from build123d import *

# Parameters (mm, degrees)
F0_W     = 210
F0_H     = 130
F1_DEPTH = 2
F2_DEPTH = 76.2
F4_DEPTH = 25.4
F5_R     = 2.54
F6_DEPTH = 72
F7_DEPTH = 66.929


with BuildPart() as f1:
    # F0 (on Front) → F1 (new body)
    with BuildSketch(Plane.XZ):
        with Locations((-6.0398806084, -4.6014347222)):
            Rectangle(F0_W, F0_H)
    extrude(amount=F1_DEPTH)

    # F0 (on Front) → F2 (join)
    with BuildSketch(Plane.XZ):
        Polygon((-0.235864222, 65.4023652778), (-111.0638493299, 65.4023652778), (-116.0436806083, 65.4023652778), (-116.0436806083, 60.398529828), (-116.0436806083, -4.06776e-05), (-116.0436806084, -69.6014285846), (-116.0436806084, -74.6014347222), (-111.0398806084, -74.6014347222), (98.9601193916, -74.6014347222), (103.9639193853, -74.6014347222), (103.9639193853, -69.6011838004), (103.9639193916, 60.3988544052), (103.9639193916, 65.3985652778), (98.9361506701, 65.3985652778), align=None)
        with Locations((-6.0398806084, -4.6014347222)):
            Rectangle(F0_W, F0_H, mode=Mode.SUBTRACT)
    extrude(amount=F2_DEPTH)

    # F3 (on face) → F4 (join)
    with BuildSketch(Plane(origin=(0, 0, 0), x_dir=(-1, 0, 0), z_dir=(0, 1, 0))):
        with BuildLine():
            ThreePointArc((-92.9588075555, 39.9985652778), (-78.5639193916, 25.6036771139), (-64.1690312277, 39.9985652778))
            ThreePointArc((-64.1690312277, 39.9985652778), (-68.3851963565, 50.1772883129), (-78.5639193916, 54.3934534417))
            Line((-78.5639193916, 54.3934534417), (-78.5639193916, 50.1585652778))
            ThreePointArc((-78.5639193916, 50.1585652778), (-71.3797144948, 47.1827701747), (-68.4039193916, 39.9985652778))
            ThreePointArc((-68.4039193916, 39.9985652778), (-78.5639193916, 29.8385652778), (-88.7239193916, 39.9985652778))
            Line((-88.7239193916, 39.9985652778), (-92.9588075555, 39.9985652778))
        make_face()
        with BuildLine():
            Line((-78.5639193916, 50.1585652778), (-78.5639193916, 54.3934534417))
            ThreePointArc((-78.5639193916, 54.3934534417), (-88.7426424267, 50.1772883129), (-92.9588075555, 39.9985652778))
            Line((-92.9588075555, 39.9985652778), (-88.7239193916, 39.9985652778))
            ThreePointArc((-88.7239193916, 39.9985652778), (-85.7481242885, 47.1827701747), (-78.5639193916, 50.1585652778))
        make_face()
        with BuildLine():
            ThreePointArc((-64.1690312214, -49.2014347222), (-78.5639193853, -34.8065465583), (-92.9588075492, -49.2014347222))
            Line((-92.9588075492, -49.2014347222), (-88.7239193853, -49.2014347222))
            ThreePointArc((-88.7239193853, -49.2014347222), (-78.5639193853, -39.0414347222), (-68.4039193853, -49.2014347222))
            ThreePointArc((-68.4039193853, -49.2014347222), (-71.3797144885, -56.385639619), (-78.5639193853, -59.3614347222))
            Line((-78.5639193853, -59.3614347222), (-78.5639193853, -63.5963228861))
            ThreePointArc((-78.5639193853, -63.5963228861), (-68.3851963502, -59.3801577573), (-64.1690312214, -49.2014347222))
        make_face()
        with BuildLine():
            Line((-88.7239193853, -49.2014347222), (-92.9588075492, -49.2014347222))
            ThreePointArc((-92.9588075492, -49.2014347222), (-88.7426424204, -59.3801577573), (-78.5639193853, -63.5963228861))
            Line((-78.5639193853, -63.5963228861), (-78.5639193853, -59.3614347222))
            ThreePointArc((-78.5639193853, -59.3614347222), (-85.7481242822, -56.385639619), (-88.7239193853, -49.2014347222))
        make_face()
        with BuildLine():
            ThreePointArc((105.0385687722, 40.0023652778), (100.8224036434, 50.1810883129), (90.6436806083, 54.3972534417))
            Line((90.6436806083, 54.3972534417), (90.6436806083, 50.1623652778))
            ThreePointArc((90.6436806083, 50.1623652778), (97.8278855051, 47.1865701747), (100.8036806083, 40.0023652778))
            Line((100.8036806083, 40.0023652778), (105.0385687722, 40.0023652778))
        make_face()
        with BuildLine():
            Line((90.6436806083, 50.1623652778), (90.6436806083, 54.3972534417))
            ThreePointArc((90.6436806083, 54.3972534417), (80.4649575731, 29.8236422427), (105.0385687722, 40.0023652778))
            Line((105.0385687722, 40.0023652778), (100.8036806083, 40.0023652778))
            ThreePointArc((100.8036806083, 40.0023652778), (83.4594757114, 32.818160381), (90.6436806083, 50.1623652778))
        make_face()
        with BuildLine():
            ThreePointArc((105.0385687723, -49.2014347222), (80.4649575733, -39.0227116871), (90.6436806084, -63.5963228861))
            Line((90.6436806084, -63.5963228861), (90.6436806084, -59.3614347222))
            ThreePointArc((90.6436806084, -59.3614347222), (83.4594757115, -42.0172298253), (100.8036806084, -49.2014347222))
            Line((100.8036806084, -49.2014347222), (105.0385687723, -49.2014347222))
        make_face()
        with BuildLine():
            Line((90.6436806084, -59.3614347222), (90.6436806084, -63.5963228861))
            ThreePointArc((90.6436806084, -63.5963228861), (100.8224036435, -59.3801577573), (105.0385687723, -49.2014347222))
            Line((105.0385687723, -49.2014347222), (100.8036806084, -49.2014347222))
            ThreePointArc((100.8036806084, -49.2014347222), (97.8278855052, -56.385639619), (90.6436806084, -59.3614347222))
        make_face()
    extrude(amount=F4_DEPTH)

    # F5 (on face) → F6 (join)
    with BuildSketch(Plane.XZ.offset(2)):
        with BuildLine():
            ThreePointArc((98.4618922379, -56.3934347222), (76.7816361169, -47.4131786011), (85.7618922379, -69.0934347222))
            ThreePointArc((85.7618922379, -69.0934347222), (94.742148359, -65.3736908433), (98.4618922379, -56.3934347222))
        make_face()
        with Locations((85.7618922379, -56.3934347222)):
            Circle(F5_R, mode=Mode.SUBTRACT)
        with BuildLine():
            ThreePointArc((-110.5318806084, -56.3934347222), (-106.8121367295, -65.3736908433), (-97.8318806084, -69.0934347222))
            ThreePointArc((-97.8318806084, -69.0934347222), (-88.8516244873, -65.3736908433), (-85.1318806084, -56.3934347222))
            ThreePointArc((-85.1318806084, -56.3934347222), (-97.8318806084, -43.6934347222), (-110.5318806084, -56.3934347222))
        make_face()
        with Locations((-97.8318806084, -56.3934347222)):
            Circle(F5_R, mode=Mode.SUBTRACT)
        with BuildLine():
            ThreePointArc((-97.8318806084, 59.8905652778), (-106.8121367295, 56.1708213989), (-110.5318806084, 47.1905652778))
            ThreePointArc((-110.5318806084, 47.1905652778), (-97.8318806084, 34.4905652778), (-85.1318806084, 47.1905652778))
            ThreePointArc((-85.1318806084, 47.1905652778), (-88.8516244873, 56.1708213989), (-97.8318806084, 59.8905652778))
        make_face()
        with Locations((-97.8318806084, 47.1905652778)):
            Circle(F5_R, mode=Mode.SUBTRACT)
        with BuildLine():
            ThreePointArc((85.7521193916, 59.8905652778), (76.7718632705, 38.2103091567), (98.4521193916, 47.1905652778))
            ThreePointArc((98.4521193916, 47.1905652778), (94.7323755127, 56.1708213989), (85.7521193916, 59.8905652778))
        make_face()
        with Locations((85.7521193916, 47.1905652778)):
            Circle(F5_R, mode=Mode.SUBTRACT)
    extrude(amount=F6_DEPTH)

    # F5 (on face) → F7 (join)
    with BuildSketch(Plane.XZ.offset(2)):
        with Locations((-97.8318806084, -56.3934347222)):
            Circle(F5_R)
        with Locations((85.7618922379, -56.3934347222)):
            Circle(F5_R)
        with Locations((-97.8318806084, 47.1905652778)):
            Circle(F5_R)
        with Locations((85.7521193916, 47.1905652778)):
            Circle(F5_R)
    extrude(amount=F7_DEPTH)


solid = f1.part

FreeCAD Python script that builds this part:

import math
import FreeCAD as App
import Part
import Sketcher

V = App.Vector
Q = App.Units.Quantity

doc = App.newDocument("Part")
body = doc.addObject("PartDesign::Body", "Body")

sketch1 = body.newObject("Sketcher::SketchObject", "Sketch")
sketch1.AttachmentSupport = (doc.getObject("XZ_Plane"), [""])
sketch1.MapMode = "FlatFace"
sketch1.addGeometry([
    Part.LineSegment(V(-111, 60, 0), V(-111, -70, 0)),
    Part.LineSegment(V(-111, -70, 0), V(99, -70, 0)),
    Part.LineSegment(V(99, -70, 0), V(99, 60, 0)),
    Part.LineSegment(V(99, 60, 0), V(-111, 60, 0)),
], False)
sketch1.addConstraint([
    Sketcher.Constraint("Coincident", 0, 2, 1, 1),
    Sketcher.Constraint("Coincident", 1, 2, 2, 1),
    Sketcher.Constraint("Coincident", 2, 2, 3, 1),
    Sketcher.Constraint("Coincident", 3, 2, 0, 1),
    Sketcher.Constraint("Vertical", 0),
    Sketcher.Constraint("Horizontal", 1),
    Sketcher.Constraint("Vertical", 2),
    Sketcher.Constraint("Horizontal", 3),
    Sketcher.Constraint("DistanceX", 1, 1, 1, 2, Q("210 mm")),
    Sketcher.Constraint("DistanceY", 0, 2, 0, 1, Q("130 mm")),
    Sketcher.Constraint("DistanceX", 0, 2, -1, 1, Q("111.039881 mm")),
    Sketcher.Constraint("DistanceY", 0, 2, -1, 1, Q("69.601435 mm")),
])
pad1 = body.newObject("PartDesign::Pad", "Pad")
pad1.Profile = sketch1
pad1.Length = 2

sketch2 = body.newObject("Sketcher::SketchObject", "Sketch001")
sketch2.AttachmentSupport = (doc.getObject("XZ_Plane"), [""])
sketch2.MapMode = "FlatFace"
sketch2.addGeometry([
    Part.LineSegment(V(-0.2, 65.4, 0), V(-116, 65.4, 0)),
    Part.LineSegment(V(-116, 65.4, 0), V(-116, 0, 0)),
    Part.LineSegment(V(-116, 0, 0), V(-116, -69.6, 0)),
    Part.LineSegment(V(-116, -69.6, 0), V(-116, -74.6, 0)),
    Part.LineSegment(V(-116, -74.6, 0), V(104, -74.6, 0)),
    Part.LineSegment(V(104, -74.6, 0), V(104, -69.6, 0)),
    Part.LineSegment(V(104, -69.6, 0), V(104, 60.4, 0)),
    Part.LineSegment(V(104, 60.4, 0), V(104, 65.4, 0)),
    Part.LineSegment(V(104, 65.4, 0), V(98.9, 65.4, 0)),
    Part.LineSegment(V(98.9, 65.4, 0), V(-0.2, 65.4, 0)),
    Part.LineSegment(V(99, -69.6, 0), V(-111, -69.6, 0)),
    Part.LineSegment(V(-111, -69.6, 0), V(-111, 60.4, 0)),
    Part.LineSegment(V(-111, 60.4, 0), V(99, 60.4, 0)),
    Part.LineSegment(V(99, 60.4, 0), V(99, -69.6, 0)),
], False)
sketch2.addConstraint([
    Sketcher.Constraint("Coincident", 0, 2, 1, 1),
    Sketcher.Constraint("Coincident", 1, 2, 2, 1),
    Sketcher.Constraint("Coincident", 2, 2, 3, 1),
    Sketcher.Constraint("Coincident", 3, 2, 4, 1),
    Sketcher.Constraint("Coincident", 4, 2, 5, 1),
    Sketcher.Constraint("Coincident", 5, 2, 6, 1),
    Sketcher.Constraint("Coincident", 6, 2, 7, 1),
    Sketcher.Constraint("Coincident", 7, 2, 8, 1),
    Sketcher.Constraint("Coincident", 8, 2, 9, 1),
    Sketcher.Constraint("Coincident", 9, 2, 0, 1),
    Sketcher.Constraint("Coincident", 10, 2, 11, 1),
    Sketcher.Constraint("Coincident", 11, 2, 12, 1),
    Sketcher.Constraint("Coincident", 12, 2, 13, 1),
    Sketcher.Constraint("Coincident", 13, 2, 10, 1),
    Sketcher.Constraint("Horizontal", 0),
    Sketcher.Constraint("Vertical", 1),
    Sketcher.Constraint("Vertical", 2),
    Sketcher.Constraint("Vertical", 3),
    Sketcher.Constraint("Horizontal", 4),
    Sketcher.Constraint("Vertical", 5),
    Sketcher.Constraint("Vertical", 6),
    Sketcher.Constraint("Vertical", 7),
    Sketcher.Constraint("Horizontal", 8),
    Sketcher.Constraint("Horizontal", 10),
    Sketcher.Constraint("Vertical", 11),
    Sketcher.Constraint("Horizontal", 12),
    Sketcher.Constraint("Vertical", 13),
    Sketcher.Constraint("DistanceX", 2, 2, 10, 2, Q("0.197 in")),
    Sketcher.Constraint("DistanceY", 11, 2, 0, 2, Q("0.197 in")),
    Sketcher.Constraint("DistanceX", 12, 2, 6, 2, Q("0.197 in")),
    Sketcher.Constraint("DistanceX", 4, 1, 4, 2, Q("220.0076 mm")),
    Sketcher.Constraint("DistanceY", 11, 1, 11, 2, Q("130 mm")),
    Sketcher.Constraint("DistanceX", 8, 2, 8, 1, Q("5.027769 mm")),
    Sketcher.Constraint("DistanceY", 5, 1, 5, 2, Q("5.000251 mm")),
    Sketcher.Constraint("DistanceY", 6, 1, 6, 2, Q("130.000038 mm")),
    Sketcher.Constraint("DistanceY", 7, 1, 7, 2, Q("4.999711 mm")),
    Sketcher.Constraint("DistanceY", 3, 2, 0, 2, Q("140.0038 mm")),
    Sketcher.Constraint("DistanceX", 0, 2, 0, 1, Q("115.807816 mm")),
    Sketcher.Constraint("DistanceY", 1, 2, 1, 1, Q("65.402406 mm")),
    Sketcher.Constraint("DistanceY", 2, 2, 2, 1, Q("69.601388 mm")),
    Sketcher.Constraint("DistanceX", 0, 2, -1, 1, Q("116.043681 mm")),
    Sketcher.Constraint("DistanceY", 2, 2, -1, 1, Q("69.601429 mm")),
])
pad2 = body.newObject("PartDesign::Pad", "Pad001")
pad2.Profile = sketch2
pad2.Length = Q("3 in")

sketch3 = body.newObject("Sketcher::SketchObject", "Sketch002")
sketch3.AttachmentSupport = (doc.getObject("XZ_Plane"), [""])
sketch3.MapMode = "FlatFace"
sketch3.addGeometry([
    Part.ArcOfCircle(Part.Circle(V(79, 40, 0), V(0, 0, 1), 14), math.radians(180), math.radians(360)),
    Part.ArcOfCircle(Part.Circle(V(79, 40, 0), V(0, 0, 1), 14), math.radians(90), math.radians(180)),
    Part.ArcOfCircle(Part.Circle(V(79, 40, 0), V(0, 0, 1), 14), math.radians(0), math.radians(90)),
    Part.ArcOfCircle(Part.Circle(V(79, 40, 0), V(0, 0, 1), 10), math.radians(90), math.radians(180)),
    Part.ArcOfCircle(Part.Circle(V(79, 40, 0), V(0, 0, 1), 10), math.radians(180), math.radians(360)),
    Part.ArcOfCircle(Part.Circle(V(79, 40, 0), V(0, 0, 1), 10), math.radians(0), math.radians(90)),
    Part.ArcOfCircle(Part.Circle(V(79, -49, 0), V(0, 0, 1), 14), math.radians(0), math.radians(180)),
    Part.ArcOfCircle(Part.Circle(V(79, -49, 0), V(0, 0, 1), 14), math.radians(-90), math.radians(0)),
    Part.ArcOfCircle(Part.Circle(V(79, -49, 0), V(0, 0, 1), 14), math.radians(180), math.radians(270)),
    Part.ArcOfCircle(Part.Circle(V(79, -49, 0), V(0, 0, 1), 10), math.radians(0), math.radians(180)),
    Part.ArcOfCircle(Part.Circle(V(79, -49, 0), V(0, 0, 1), 10), math.radians(180), math.radians(270)),
    Part.ArcOfCircle(Part.Circle(V(79, -49, 0), V(0, 0, 1), 10), math.radians(-90), math.radians(0)),
    Part.ArcOfCircle(Part.Circle(V(-91, 40, 0), V(0, 0, 1), 14), math.radians(90), math.radians(180)),
    Part.ArcOfCircle(Part.Circle(V(-91, 40, 0), V(0, 0, 1), 14), math.radians(180), math.radians(450)),
    Part.ArcOfCircle(Part.Circle(V(-91, 40, 0), V(0, 0, 1), 10), math.radians(90), math.radians(180)),
    Part.ArcOfCircle(Part.Circle(V(-91, 40, 0), V(0, 0, 1), 10), math.radians(180), math.radians(450)),
    Part.ArcOfCircle(Part.Circle(V(-91, -49, 0), V(0, 0, 1), 14), math.radians(-90), math.radians(180)),
    Part.ArcOfCircle(Part.Circle(V(-91, -49, 0), V(0, 0, 1), 14), math.radians(180), math.radians(270)),
    Part.ArcOfCircle(Part.Circle(V(-91, -49, 0), V(0, 0, 1), 10), math.radians(-90), math.radians(180)),
    Part.ArcOfCircle(Part.Circle(V(-91, -49, 0), V(0, 0, 1), 10), math.radians(180), math.radians(270)),
], False)
sketch3.addConstraint([
    Sketcher.Constraint("Tangent", 0, 1, 1, 2),
    Sketcher.Constraint("Tangent", 1, 1, 2, 2),
    Sketcher.Constraint("Tangent", 2, 1, 0, 2),
    Sketcher.Constraint("Tangent", 3, 2, 4, 1),
    Sketcher.Constraint("Tangent", 4, 2, 5, 1),
    Sketcher.Constraint("Tangent", 5, 2, 3, 1),
    Sketcher.Constraint("Tangent", 6, 1, 7, 2),
    Sketcher.Constraint("Tangent", 7, 1, 8, 2),
    Sketcher.Constraint("Tangent", 8, 1, 6, 2),
    Sketcher.Constraint("Tangent", 9, 2, 10, 1),
    Sketcher.Constraint("Tangent", 10, 2, 11, 1),
    Sketcher.Constraint("Tangent", 11, 2, 9, 1),
    Sketcher.Constraint("Tangent", 12, 1, 13, 2),
    Sketcher.Constraint("Coincident", 13, 1, 12, 2),
    Sketcher.Constraint("Tangent", 14, 1, 15, 2),
    Sketcher.Constraint("Coincident", 15, 1, 14, 2),
    Sketcher.Constraint("Tangent", 16, 1, 17, 2),
    Sketcher.Constraint("Coincident", 17, 1, 16, 2),
    Sketcher.Constraint("Tangent", 18, 1, 19, 2),
    Sketcher.Constraint("Coincident", 19, 1, 18, 2),
    Sketcher.Constraint("Coincident", 3, 3, 0, 3),
    Sketcher.Constraint("Coincident", 9, 3, 6, 3),
    Sketcher.Constraint("Coincident", 14, 3, 12, 3),
    Sketcher.Constraint("Coincident", 18, 3, 16, 3),
    Sketcher.Constraint("Equal", 2, 6),
    Sketcher.Constraint("Equal", 5, 9),
    Sketcher.Constraint("Equal", 8, 12),
    Sketcher.Constraint("Equal", 11, 14),
    Sketcher.Constraint("Equal", 13, 16),
    Sketcher.Constraint("Equal", 15, 18),
    Sketcher.Constraint("Horizontal", 11, 3, 16, 3),
    Sketcher.Constraint("Horizontal", 5, 3, 0, 1),
    Sketcher.Constraint("Horizontal", 0, 1, 2, 1),
    Sketcher.Constraint("Horizontal", 2, 1, 3, 2),
    Sketcher.Constraint("Horizontal", 3, 2, 4, 2),
    Sketcher.Constraint("Horizontal", 19, 3, 6, 1),
    Sketcher.Constraint("Horizontal", 6, 1, 8, 1),
    Sketcher.Constraint("Horizontal", 8, 1, 9, 2),
    Sketcher.Constraint("Horizontal", 9, 2, 11, 2),
    Sketcher.Constraint("Horizontal", 15, 3, 13, 1),
    Sketcher.Constraint("Horizontal", 13, 1, 15, 1),
    Sketcher.Constraint("Horizontal", 11, 2, 17, 1),
    Sketcher.Constraint("Horizontal", 17, 1, 19, 1),
    Sketcher.Constraint("Vertical", 5, 3, 6, 3),
    Sketcher.Constraint("Vertical", 15, 3, 16, 3),
    Sketcher.Constraint("Vertical", 11, 3, 1, 1),
    Sketcher.Constraint("Vertical", 1, 1, 5, 2),
    Sketcher.Constraint("Vertical", 5, 2, 7, 1),
    Sketcher.Constraint("Vertical", 7, 1, 10, 2),
    Sketcher.Constraint("Vertical", 19, 3, 12, 1),
    Sketcher.Constraint("Vertical", 12, 1, 14, 1),
    Sketcher.Constraint("Vertical", 14, 1, 16, 1),
    Sketcher.Constraint("Vertical", 16, 1, 18, 1),
    Sketcher.Constraint("Radius", 3, Q("0.4 in")),
    Sketcher.Constraint("Radius", 0, Q("14.394888 mm")),
    Sketcher.Constraint("DistanceY", 6, 3, 0, 3, Q("89.2 mm")),
    Sketcher.Constraint("DistanceX", 12, 3, 0, 3, Q("169.2076 mm")),
    Sketcher.Constraint("DistanceY", 0, 3, 12, 3, Q("0.0038 mm")),
    Sketcher.Constraint("DistanceX", -1, 1, 0, 3, Q("78.563919 mm")),
    Sketcher.Constraint("DistanceY", -1, 1, 0, 3, Q("39.998565 mm")),
])
pad3 = body.newObject("PartDesign::Pad", "Pad002")
pad3.Profile = sketch3
pad3.Length = Q("1 in")
pad3.Reversed = True

sketch4 = body.newObject("Sketcher::SketchObject", "Sketch003")
sketch4.AttachmentSupport = (doc.getObject("XZ_Plane"), [""])
sketch4.MapMode = "FlatFace"
sketch4.AttachmentOffset = App.Placement(V(0, 0, 2), App.Rotation())
sketch4.addGeometry([
    Part.ArcOfCircle(Part.Circle(V(85.8, -56.4, 0), V(0, 0, 1), 12.7), math.radians(0), math.radians(270)),
    Part.ArcOfCircle(Part.Circle(V(85.8, -56.4, 0), V(0, 0, 1), 12.7), math.radians(-90), math.radians(0)),
    Part.Circle(V(85.8, -56.4, 0), V(0, 0, 1), 2.5),
    Part.ArcOfCircle(Part.Circle(V(-97.8, -56.4, 0), V(0, 0, 1), 12.7), math.radians(180), math.radians(270)),
    Part.ArcOfCircle(Part.Circle(V(-97.8, -56.4, 0), V(0, 0, 1), 12.7), math.radians(-90), math.radians(0)),
    Part.ArcOfCircle(Part.Circle(V(-97.8, -56.4, 0), V(0, 0, 1), 12.7), math.radians(0), math.radians(180)),
    Part.Circle(V(-97.8, -56.4, 0), V(0, 0, 1), 2.5),
    Part.ArcOfCircle(Part.Circle(V(-97.8, 47.2, 0), V(0, 0, 1), 12.7), math.radians(90), math.radians(180)),
    Part.ArcOfCircle(Part.Circle(V(-97.8, 47.2, 0), V(0, 0, 1), 12.7), math.radians(180), math.radians(360)),
    Part.ArcOfCircle(Part.Circle(V(-97.8, 47.2, 0), V(0, 0, 1), 12.7), math.radians(0), math.radians(90)),
    Part.Circle(V(-97.8, 47.2, 0), V(0, 0, 1), 2.5),
    Part.ArcOfCircle(Part.Circle(V(85.8, 47.2, 0), V(0, 0, 1), 12.7), math.radians(90), math.radians(360)),
    Part.ArcOfCircle(Part.Circle(V(85.8, 47.2, 0), V(0, 0, 1), 12.7), math.radians(0), math.radians(90)),
    Part.Circle(V(85.8, 47.2, 0), V(0, 0, 1), 2.5),
], False)
sketch4.addConstraint([
    Sketcher.Constraint("Tangent", 0, 1, 1, 2),
    Sketcher.Constraint("Coincident", 1, 1, 0, 2),
    Sketcher.Constraint("Tangent", 3, 2, 4, 1),
    Sketcher.Constraint("Tangent", 4, 2, 5, 1),
    Sketcher.Constraint("Tangent", 5, 2, 3, 1),
    Sketcher.Constraint("Tangent", 7, 2, 8, 1),
    Sketcher.Constraint("Tangent", 8, 2, 9, 1),
    Sketcher.Constraint("Tangent", 9, 2, 7, 1),
    Sketcher.Constraint("Tangent", 11, 1, 12, 2),
    Sketcher.Constraint("Coincident", 12, 1, 11, 2),
    Sketcher.Constraint("Coincident", 2, 3, 0, 3),
    Sketcher.Constraint("Coincident", 6, 3, 3, 3),
    Sketcher.Constraint("Coincident", 10, 3, 7, 3),
    Sketcher.Constraint("Coincident", 13, 3, 11, 3),
    Sketcher.Constraint("Equal", 1, 3),
    Sketcher.Constraint("Equal", 2, 6),
    Sketcher.Constraint("Equal", 5, 7),
    Sketcher.Constraint("Equal", 6, 10),
    Sketcher.Constraint("Equal", 9, 11),
    Sketcher.Constraint("Equal", 10, 13),
    Sketcher.Constraint("Horizontal", 2, 3, 3, 3),
    Sketcher.Constraint("Horizontal", 10, 3, 11, 3),
    Sketcher.Constraint("Horizontal", 6, 3, 0, 1),
    Sketcher.Constraint("Horizontal", 0, 1, 4, 2),
    Sketcher.Constraint("Horizontal", 4, 2, 5, 2),
    Sketcher.Constraint("Horizontal", 13, 3, 7, 2),
    Sketcher.Constraint("Horizontal", 7, 2, 8, 2),
    Sketcher.Constraint("Horizontal", 8, 2, 12, 1),
    Sketcher.Constraint("Vertical", 6, 3, 7, 3),
    Sketcher.Constraint("Vertical", 2, 3, 1, 1),
    Sketcher.Constraint("Vertical", 10, 3, 3, 2),
    Sketcher.Constraint("Vertical", 3, 2, 9, 2),
    Sketcher.Constraint("Vertical", 13, 3, 11, 1),
    Sketcher.Constraint("Diameter", 2, Q("0.2 in")),
    Sketcher.Constraint("Radius", 0, Q("0.5 in")),
    Sketcher.Constraint("DistanceY", 3, 3, 7, 3, Q("103.584 mm")),
    Sketcher.Constraint("DistanceX", 8, 3, 11, 3, Q("183.584 mm")),
    Sketcher.Constraint("DistanceX", 3, 3, -1, 1, Q("97.831881 mm")),
    Sketcher.Constraint("DistanceX", -1, 1, 0, 3, Q("85.761892 mm")),
    Sketcher.Constraint("DistanceY", 0, 3, -1, 1, Q("56.393435 mm")),
])
pad4 = body.newObject("PartDesign::Pad", "Pad003")
pad4.Profile = sketch4
pad4.Length = 72

sketch5 = body.newObject("Sketcher::SketchObject", "Sketch004")
sketch5.AttachmentSupport = (doc.getObject("XZ_Plane"), [""])
sketch5.MapMode = "FlatFace"
sketch5.AttachmentOffset = App.Placement(V(0, 0, 2), App.Rotation())
sketch5.addGeometry([
    Part.Circle(V(-97.8, -56.4, 0), V(0, 0, 1), 2.5),
    Part.Circle(V(85.8, -56.4, 0), V(0, 0, 1), 2.5),
    Part.Circle(V(-97.8, 47.2, 0), V(0, 0, 1), 2.5),
    Part.Circle(V(85.8, 47.2, 0), V(0, 0, 1), 2.5),
], False)
sketch5.addConstraint([
    Sketcher.Constraint("Equal", 0, 1),
    Sketcher.Constraint("Equal", 1, 2),
    Sketcher.Constraint("Equal", 2, 3),
    Sketcher.Constraint("Horizontal", 0, 3, 1, 3),
    Sketcher.Constraint("Horizontal", 2, 3, 3, 3),
    Sketcher.Constraint("Vertical", 0, 3, 2, 3),
    Sketcher.Constraint("Diameter", 0, Q("0.2 in")),
    Sketcher.Constraint("DistanceY", 0, 3, 2, 3, Q("103.584 mm")),
    Sketcher.Constraint("DistanceX", 2, 3, 3, 3, Q("183.584 mm")),
    Sketcher.Constraint("DistanceX", 0, 3, -1, 1, Q("97.831881 mm")),
    Sketcher.Constraint("DistanceY", 0, 3, -1, 1, Q("56.393435 mm")),
    Sketcher.Constraint("DistanceX", -1, 1, 1, 3, Q("85.761892 mm")),
])
pad5 = body.newObject("PartDesign::Pad", "Pad004")
pad5.Profile = sketch5
pad5.Length = Q("2.635 in")

doc.recompute()
